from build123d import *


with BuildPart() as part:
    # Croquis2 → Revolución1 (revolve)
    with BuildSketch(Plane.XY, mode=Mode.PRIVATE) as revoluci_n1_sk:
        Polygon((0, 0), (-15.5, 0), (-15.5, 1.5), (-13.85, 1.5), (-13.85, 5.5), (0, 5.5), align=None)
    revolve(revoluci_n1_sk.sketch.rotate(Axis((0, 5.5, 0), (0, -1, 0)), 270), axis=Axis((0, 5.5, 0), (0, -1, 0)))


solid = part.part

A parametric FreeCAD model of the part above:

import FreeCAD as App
import Part
import Sketcher


def add_polygon(sketch, points):
    """Adds a closed chain of lines whose ends are joined by coincident constraints."""
    first, n = sketch.GeometryCount, len(points)
    for a, b in zip(points, points[1:] + points[:1]):
        sketch.addGeometry(Part.LineSegment(App.Vector(*a, 0), App.Vector(*b, 0)), False)
    for i in range(n):
        sketch.addConstraint(Sketcher.Constraint("Coincident", first + i, 2, first + (i + 1) % n, 1))

doc = App.newDocument("Part")
body = doc.addObject("PartDesign::Body", "Body")

# Sketch on XY plane
sketch1 = body.newObject("Sketcher::SketchObject", "Sketch")
sketch1.AttachmentSupport = (doc.getObject("XY_Plane"), [""])
sketch1.MapMode = "FlatFace"
add_polygon(sketch1, [(-15.5, 0), (0, 0), (0, 5.5), (-13.8, 5.5), (-13.8, 1.5), (-15.5, 1.5)])  # lines 0-5
sketch1.addConstraint([
    Sketcher.Constraint("Horizontal", 0),
    Sketcher.Constraint("Vertical", 1),
    Sketcher.Constraint("Horizontal", 2),
    Sketcher.Constraint("Vertical", 3),
    Sketcher.Constraint("Horizontal", 4),
    Sketcher.Constraint("Vertical", 5),
    Sketcher.Constraint("Coincident", 0, 2, -1, 1),
    Sketcher.Constraint("DistanceY", 3, 2, 3, 1, 4.0),
    Sketcher.Constraint("DistanceX", 0, 1, 0, 2, 15.5),
    Sketcher.Constraint("DistanceY", 1, 1, 1, 2, 5.5),
    Sketcher.Constraint("DistanceX", 2, 2, 2, 1, 13.85),
])
revolution = body.newObject("PartDesign::Revolution", "Revolution")
revolution.Profile = sketch1
revolution.ReferenceAxis = (sketch1, ["V_Axis"])
revolution.Angle = 360

doc.recompute()
